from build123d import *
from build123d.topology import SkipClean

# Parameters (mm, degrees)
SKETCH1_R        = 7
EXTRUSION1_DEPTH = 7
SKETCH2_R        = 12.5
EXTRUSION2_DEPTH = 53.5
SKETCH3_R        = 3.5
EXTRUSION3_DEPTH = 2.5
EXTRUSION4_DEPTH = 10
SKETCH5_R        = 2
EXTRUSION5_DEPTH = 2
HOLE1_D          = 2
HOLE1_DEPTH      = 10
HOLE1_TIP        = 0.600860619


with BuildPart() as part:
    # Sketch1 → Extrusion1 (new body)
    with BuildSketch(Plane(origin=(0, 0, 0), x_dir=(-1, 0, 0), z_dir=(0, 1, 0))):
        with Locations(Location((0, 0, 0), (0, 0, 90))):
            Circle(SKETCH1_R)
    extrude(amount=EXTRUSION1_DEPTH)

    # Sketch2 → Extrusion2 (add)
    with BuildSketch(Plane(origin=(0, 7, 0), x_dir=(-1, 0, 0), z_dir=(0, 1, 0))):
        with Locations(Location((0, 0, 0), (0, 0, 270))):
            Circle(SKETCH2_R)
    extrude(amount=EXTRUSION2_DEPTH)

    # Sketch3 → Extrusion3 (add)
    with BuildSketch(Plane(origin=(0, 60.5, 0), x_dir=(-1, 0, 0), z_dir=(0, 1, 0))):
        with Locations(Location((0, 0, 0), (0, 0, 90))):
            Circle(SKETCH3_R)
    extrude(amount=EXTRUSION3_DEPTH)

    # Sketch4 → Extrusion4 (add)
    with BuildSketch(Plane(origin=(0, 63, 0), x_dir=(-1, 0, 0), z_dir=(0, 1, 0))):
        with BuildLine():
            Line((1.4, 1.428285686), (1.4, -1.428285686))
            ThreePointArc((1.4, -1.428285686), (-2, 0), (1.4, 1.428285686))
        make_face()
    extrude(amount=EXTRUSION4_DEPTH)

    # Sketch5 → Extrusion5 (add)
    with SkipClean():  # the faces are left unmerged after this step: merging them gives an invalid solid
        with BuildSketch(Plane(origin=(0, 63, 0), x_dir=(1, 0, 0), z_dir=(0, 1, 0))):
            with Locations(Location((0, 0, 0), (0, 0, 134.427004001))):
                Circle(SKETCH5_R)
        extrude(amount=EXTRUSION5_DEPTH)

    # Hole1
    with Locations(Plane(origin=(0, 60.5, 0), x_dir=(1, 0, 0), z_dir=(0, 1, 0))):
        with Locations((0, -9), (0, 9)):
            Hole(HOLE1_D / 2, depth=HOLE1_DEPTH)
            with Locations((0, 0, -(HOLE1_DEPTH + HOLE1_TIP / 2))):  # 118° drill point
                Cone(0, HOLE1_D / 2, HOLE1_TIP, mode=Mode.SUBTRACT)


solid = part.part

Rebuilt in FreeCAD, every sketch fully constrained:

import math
import FreeCAD as App
import Part
import Sketcher
from FreeCAD import Vector

doc = App.newDocument("Part")
body = doc.addObject("PartDesign::Body", "Body")

# Sketch on XZ plane
sketch1 = doc.addObject("Sketcher::SketchObject", "Sketch")
body.addObject(sketch1)
sketch1.AttachmentSupport = (doc.XZ_Plane, [""])
sketch1.MapMode = "FlatFace"
sketch1.addGeometry(Part.Circle(Vector(0, 0, 0), Vector(0, 0, 1), 7), False)
sketch1.addConstraint(Sketcher.Constraint("Coincident", 0, 3, -1, 1))
sketch1.addConstraint(Sketcher.Constraint("Diameter", 0, 14.0))
pad1 = doc.addObject("PartDesign::Pad", "Pad")
body.addObject(pad1)
pad1.Profile = sketch1
pad1.Length = 7
pad1.Reversed = True

# Sketch on XZ plane
sketch2 = doc.addObject("Sketcher::SketchObject", "Sketch001")
body.addObject(sketch2)
sketch2.AttachmentSupport = (doc.XZ_Plane, [""])
sketch2.MapMode = "FlatFace"
sketch2.AttachmentOffset = App.Placement(Vector(0, 0, -7), App.Rotation())
sketch2.addGeometry(Part.Circle(Vector(0, 0, 0), Vector(0, 0, 1), 12), False)
sketch2.addConstraint(Sketcher.Constraint("Coincident", 0, 3, -1, 1))
sketch2.addConstraint(Sketcher.Constraint("Diameter", 0, 25.0))
pad2 = doc.addObject("PartDesign::Pad", "Pad001")
body.addObject(pad2)
pad2.Profile = sketch2
pad2.Length = 53.5
pad2.Reversed = True

# Sketch on XZ plane
sketch3 = doc.addObject("Sketcher::SketchObject", "Sketch002")
body.addObject(sketch3)
sketch3.AttachmentSupport = (doc.XZ_Plane, [""])
sketch3.MapMode = "FlatFace"
sketch3.AttachmentOffset = App.Placement(Vector(0, 0, -60.5), App.Rotation())
sketch3.addGeometry(Part.Circle(Vector(0, 0, 0), Vector(0, 0, 1), 3.5), False)
sketch3.addConstraint(Sketcher.Constraint("Coincident", 0, 3, -1, 1))
sketch3.addConstraint(Sketcher.Constraint("Diameter", 0, 7.0))
pad3 = doc.addObject("PartDesign::Pad", "Pad002")
body.addObject(pad3)
pad3.Profile = sketch3
pad3.Length = 2.5
pad3.Reversed = True

# Sketch on XZ plane
sketch4 = doc.addObject("Sketcher::SketchObject", "Sketch003")
body.addObject(sketch4)
sketch4.AttachmentSupport = (doc.XZ_Plane, [""])
sketch4.MapMode = "FlatFace"
sketch4.AttachmentOffset = App.Placement(Vector(0, 0, -63), App.Rotation())
sketch4.addGeometry(Part.LineSegment(Vector(-1.4, -1.4, 0), Vector(-1.4, 1.4, 0)), False)
sketch4.addGeometry(Part.ArcOfCircle(Part.Circle(Vector(0, 0, 0), Vector(0, 0, 1), 2), math.radians(-134), math.radians(134)), False)
sketch4.addConstraint(Sketcher.Constraint("Coincident", 0, 1, 1, 1))
sketch4.addConstraint(Sketcher.Constraint("Coincident", 1, 2, 0, 2))
sketch4.addConstraint(Sketcher.Constraint("Vertical", 0))
sketch4.addConstraint(Sketcher.Constraint("Coincident", 1, 3, -1, 1))
sketch4.addConstraint(Sketcher.Constraint("Radius", 1, 2.0))
sketch4.addConstraint(Sketcher.Constraint("DistanceX", 0, 1, -1, 1, 1.4))
pad4 = doc.addObject("PartDesign::Pad", "Pad003")
body.addObject(pad4)
pad4.Profile = sketch4
pad4.Length = 10
pad4.Reversed = True

# Sketch on XZ plane
sketch5 = doc.addObject("Sketcher::SketchObject", "Sketch004")
body.addObject(sketch5)
sketch5.AttachmentSupport = (doc.XZ_Plane, [""])
sketch5.MapMode = "FlatFace"
sketch5.AttachmentOffset = App.Placement(Vector(0, 0, -63), App.Rotation())
sketch5.addGeometry(Part.Circle(Vector(0, 0, 0), Vector(0, 0, 1), 2), False)
sketch5.addConstraint(Sketcher.Constraint("Coincident", 0, 3, -1, 1))
sketch5.addConstraint(Sketcher.Constraint("Diameter", 0, 4.0))
pad5 = doc.addObject("PartDesign::Pad", "Pad004")
body.addObject(pad5)
pad5.Profile = sketch5
pad5.Length = 2
pad5.Reversed = True

# Sketch on XZ plane
sketch6 = doc.addObject("Sketcher::SketchObject", "Sketch005")
body.addObject(sketch6)
sketch6.AttachmentSupport = (doc.XZ_Plane, [""])
sketch6.MapMode = "FlatFace"
sketch6.AttachmentOffset = App.Placement(Vector(0, 0, -60.5), App.Rotation())
sketch6.addGeometry(Part.Circle(Vector(0, 9, 0), Vector(0, 0, 1), 1), False)
sketch6.addGeometry(Part.Circle(Vector(0, -9, 0), Vector(0, 0, 1), 1), False)
sketch6.addConstraint(Sketcher.Constraint("Equal", 0, 1))
sketch6.addConstraint(Sketcher.Constraint("Symmetric", 0, 3, 1, 3, -1, 1))
sketch6.addConstraint(Sketcher.Constraint("PointOnObject", 0, 3, -2))
sketch6.addConstraint(Sketcher.Constraint("Diameter", 0, 2.0))
sketch6.addConstraint(Sketcher.Constraint("DistanceY", -1, 1, 0, 3, 9.0))
doc.recompute()
hole = doc.addObject("PartDesign::Hole", "Hole")
body.addObject(hole)
hole.Profile = sketch6
hole.ThreadType = "None"
hole.Diameter = 2
hole.DepthType = "Dimension"
hole.Depth = 10
hole.DrillPoint = "Angled"
hole.DrillPointAngle = 118
hole.Reversed = True

doc.recompute()
